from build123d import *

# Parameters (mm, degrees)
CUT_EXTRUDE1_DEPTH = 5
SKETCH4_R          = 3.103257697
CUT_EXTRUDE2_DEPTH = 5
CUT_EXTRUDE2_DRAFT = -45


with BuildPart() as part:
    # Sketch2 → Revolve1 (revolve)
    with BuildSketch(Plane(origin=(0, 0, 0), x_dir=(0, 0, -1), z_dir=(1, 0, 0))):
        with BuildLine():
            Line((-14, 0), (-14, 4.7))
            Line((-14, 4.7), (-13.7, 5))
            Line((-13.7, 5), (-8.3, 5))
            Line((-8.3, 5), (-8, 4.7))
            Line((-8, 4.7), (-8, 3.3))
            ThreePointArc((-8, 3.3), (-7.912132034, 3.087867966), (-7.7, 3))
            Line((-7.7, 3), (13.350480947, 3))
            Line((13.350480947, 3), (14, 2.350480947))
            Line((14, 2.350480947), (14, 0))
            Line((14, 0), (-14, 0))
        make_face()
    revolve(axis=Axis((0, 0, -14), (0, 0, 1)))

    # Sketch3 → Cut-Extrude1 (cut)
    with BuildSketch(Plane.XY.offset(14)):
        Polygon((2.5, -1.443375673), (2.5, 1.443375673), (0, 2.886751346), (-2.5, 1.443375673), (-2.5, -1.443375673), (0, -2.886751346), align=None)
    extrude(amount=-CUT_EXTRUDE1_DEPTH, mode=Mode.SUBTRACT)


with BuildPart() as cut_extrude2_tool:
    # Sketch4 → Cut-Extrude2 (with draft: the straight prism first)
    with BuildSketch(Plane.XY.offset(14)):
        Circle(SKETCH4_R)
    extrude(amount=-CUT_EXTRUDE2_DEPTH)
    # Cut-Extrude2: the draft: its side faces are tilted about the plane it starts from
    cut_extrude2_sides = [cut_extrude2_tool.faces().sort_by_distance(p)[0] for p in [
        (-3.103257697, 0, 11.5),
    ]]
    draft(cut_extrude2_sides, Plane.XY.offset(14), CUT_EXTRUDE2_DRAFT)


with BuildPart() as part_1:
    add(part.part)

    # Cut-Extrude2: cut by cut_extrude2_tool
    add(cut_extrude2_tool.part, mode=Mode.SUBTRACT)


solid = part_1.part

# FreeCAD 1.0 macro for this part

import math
import FreeCAD as App
import Part
import Sketcher
Q = App.Units.Quantity


def faces_at(feature, points):
    """Names of the faces that lie closest to the given points."""
    faces = feature.Shape.Faces
    near = lambda p: min(range(len(faces)), key=lambda i: faces[i].distToShape(Part.Vertex(*p))[0])
    return sorted({f"Face{near(p) + 1}" for p in points})

doc = App.newDocument("Part")
params = doc.addObject("Spreadsheet::Sheet", "Params")
for row, (alias, value) in enumerate([
    ("sketch1_radius", "0.3 mm"),
    ("sketch1_height", "28 mm"),
    ("sketch1_width", "4.7 mm"),
    ("sketch1_width2", "1.4 mm"),
    ("sketch1_height2", "5.4 mm"),
    ("revolution_angle", "360 deg"),
    ("pocket1_length", "5 mm"),
    ("pad1_length", "5 mm"),
    ("draft_angle", "45 deg"),
], start=1):
    params.set(f"A{row}", alias)
    params.set(f"B{row}", "=" + value)
    params.setAlias(f"B{row}", alias)

body = doc.addObject("PartDesign::Body", "Body")

# Sketch on YZ plane
sketch1 = doc.addObject("Sketcher::SketchObject", "Sketch")
body.addObject(sketch1)
sketch1.AttachmentSupport = (doc.YZ_Plane, [""])
sketch1.MapMode = "FlatFace"
sketch1.addGeometry([
    Part.LineSegment(App.Vector(4.7, 14, 0), App.Vector(0, 14, 0)),  # 0
    Part.LineSegment(App.Vector(0, 14, 0), App.Vector(0, -14, 0)),  # 1
    Part.LineSegment(App.Vector(0, -14, 0), App.Vector(2.35, -14, 0)),  # 2
    Part.LineSegment(App.Vector(2.35, -14, 0), App.Vector(3, -13.35, 0)),  # 3
    Part.LineSegment(App.Vector(3, -13.35, 0), App.Vector(3, 7.7, 0)),  # 4
    Part.ArcOfCircle(Part.Circle(App.Vector(3.3, 7.7, 0), App.Vector(0, 0, 1), 0.3), math.radians(90), math.radians(180)),  # 5
    Part.LineSegment(App.Vector(3.3, 8, 0), App.Vector(4.7, 8, 0)),  # 6
    Part.LineSegment(App.Vector(4.7, 8, 0), App.Vector(5, 8.3, 0)),  # 7
    Part.LineSegment(App.Vector(5, 8.3, 0), App.Vector(5, 13.7, 0)),  # 8
    Part.LineSegment(App.Vector(5, 13.7, 0), App.Vector(4.7, 14, 0)),  # 9
], False)
sketch1.addConstraint([
    Sketcher.Constraint("Coincident", 0, 2, 1, 1),
    Sketcher.Constraint("Coincident", 1, 2, 2, 1),
    Sketcher.Constraint("Coincident", 2, 2, 3, 1),
    Sketcher.Constraint("Coincident", 3, 2, 4, 1),
    Sketcher.Constraint("Tangent", 4, 2, 5, 2),
    Sketcher.Constraint("Tangent", 5, 1, 6, 1),
    Sketcher.Constraint("Coincident", 6, 2, 7, 1),
    Sketcher.Constraint("Coincident", 7, 2, 8, 1),
    Sketcher.Constraint("Coincident", 8, 2, 9, 1),
    Sketcher.Constraint("Coincident", 9, 2, 0, 1),
    Sketcher.Constraint("Horizontal", 0),
    Sketcher.Constraint("Vertical", 1),
    Sketcher.Constraint("Horizontal", 2),
    Sketcher.Constraint("Vertical", 4),
    Sketcher.Constraint("Horizontal", 6),
    Sketcher.Constraint("Vertical", 8),
    Sketcher.Constraint("Symmetric", 0, 2, 1, 2, -1, 1),
    Sketcher.Constraint("Parallel", 3, 7),
    Sketcher.Constraint("Perpendicular", 7, 9),
    Sketcher.Constraint("Vertical", 6, 2, 9, 2),
    Sketcher.Constraint("Equal", 7, 9),
    Sketcher.Constraint("Radius", 5, 0.3),
    Sketcher.Constraint("DistanceY", 1, 2, 1, 1, 28.0),
    Sketcher.Constraint("DistanceX", 0, 2, 0, 1, 4.7),
    Sketcher.Constraint("DistanceX", 6, 1, 6, 2, 1.4),
    Sketcher.Constraint("DistanceY", 8, 1, 8, 2, 5.4),
    Sketcher.Constraint("DistanceY", -1, 1, 5, 1, 8.0),
    Sketcher.Constraint("DistanceX", 2, 1, 2, 2, 2.350481),
])
sketch1.setExpression("Constraints[21]", "Params.sketch1_radius")
sketch1.setExpression("Constraints[22]", "Params.sketch1_height")
sketch1.setExpression("Constraints[23]", "Params.sketch1_width")
sketch1.setExpression("Constraints[24]", "Params.sketch1_width2")
sketch1.setExpression("Constraints[25]", "Params.sketch1_height2")
revolution = doc.addObject("PartDesign::Revolution", "Revolution")
body.addObject(revolution)
revolution.Profile = sketch1
revolution.ReferenceAxis = (sketch1, ["V_Axis"])
revolution.setExpression("Angle", "Params.revolution_angle")

# Sketch on XY plane
sketch2 = doc.addObject("Sketcher::SketchObject", "Sketch001")
body.addObject(sketch2)
sketch2.AttachmentSupport = (doc.XY_Plane, [""])
sketch2.MapMode = "FlatFace"
sketch2.AttachmentOffset = App.Placement(App.Vector(0, 0, 14), App.Rotation())
sketch2.addGeometry([
    Part.LineSegment(App.Vector(2.5, -1.4, 0), App.Vector(2.5, 1.4, 0)),  # 0
    Part.LineSegment(App.Vector(2.5, 1.4, 0), App.Vector(0, 2.9, 0)),  # 1
    Part.LineSegment(App.Vector(0, 2.9, 0), App.Vector(-2.5, 1.4, 0)),  # 2
    Part.LineSegment(App.Vector(-2.5, 1.4, 0), App.Vector(-2.5, -1.4, 0)),  # 3
    Part.LineSegment(App.Vector(-2.5, -1.4, 0), App.Vector(0, -2.9, 0)),  # 4
    Part.LineSegment(App.Vector(0, -2.9, 0), App.Vector(2.5, -1.4, 0)),  # 5
], False)
sketch2.addConstraint([
    Sketcher.Constraint("Coincident", 0, 2, 1, 1),
    Sketcher.Constraint("Coincident", 1, 2, 2, 1),
    Sketcher.Constraint("Coincident", 2, 2, 3, 1),
    Sketcher.Constraint("Coincident", 3, 2, 4, 1),
    Sketcher.Constraint("Coincident", 4, 2, 5, 1),
    Sketcher.Constraint("Coincident", 5, 2, 0, 1),
    Sketcher.Constraint("Vertical", 0),
    Sketcher.Constraint("Vertical", 3),
    Sketcher.Constraint("Symmetric", 0, 2, 3, 2, -1, 1),
    Sketcher.Constraint("Symmetric", 1, 2, 4, 2, -1, 1),
    Sketcher.Constraint("PointOnObject", 1, 2, -2),
    Sketcher.Constraint("Parallel", 2, 5),
    Sketcher.Constraint("Horizontal", 0, 2, 2, 2),
    Sketcher.Constraint("Angle", 1, Q("150 deg")),
    Sketcher.Constraint("DistanceX", 2, 2, 0, 2, 5.0),
    Sketcher.Constraint("DistanceY", 0, 1, 0, 2, 2.886751),
])
pocket1 = doc.addObject("PartDesign::Pocket", "Pocket")
body.addObject(pocket1)
pocket1.Profile = sketch2
pocket1.setExpression("Length", "Params.pocket1_length")
body2 = doc.addObject("PartDesign::Body", "Body001")

# Sketch on XY plane
sketch3 = doc.addObject("Sketcher::SketchObject", "Sketch002")
body2.addObject(sketch3)
sketch3.AttachmentSupport = (doc.getObject("XY_Plane001"), [""])
sketch3.MapMode = "FlatFace"
sketch3.AttachmentOffset = App.Placement(App.Vector(0, 0, 14), App.Rotation())
sketch3.addGeometry(Part.Circle(App.Vector(0, 0, 0), App.Vector(0, 0, 1), 3.1), False)
sketch3.addConstraint([
    Sketcher.Constraint("Coincident", 0, 3, -1, 1),
    Sketcher.Constraint("Diameter", 0, 6.206515),
])
pad1 = doc.addObject("PartDesign::Pad", "Pad")
body2.addObject(pad1)
pad1.Profile = sketch3
pad1.setExpression("Length", "Params.pad1_length")
pad1.Reversed = True
doc.recompute()

datumplane = doc.addObject("PartDesign::Plane", "DatumPlane")
body2.addObject(datumplane)
datumplane.AttachmentSupport = (doc.getObject("XY_Plane001"), [""])
datumplane.MapMode = "FlatFace"
datumplane.AttachmentOffset = App.Placement(App.Vector(0, 0, 14), App.Rotation())
draft = doc.addObject("PartDesign::Draft", "Draft")
body2.addObject(draft)
draft.Base = (pad1, faces_at(pad1, [(-3.103, 0, 11.5)]))
draft.NeutralPlane = (datumplane, [""])
draft.setExpression("Angle", "Params.draft_angle")
draft.Reversed = True
doc.recompute()

boolean = doc.addObject("PartDesign::Boolean", "Boolean")
body.addObject(boolean)
boolean.Type = "Cut"
boolean.addObjects([body2])

doc.recompute()
